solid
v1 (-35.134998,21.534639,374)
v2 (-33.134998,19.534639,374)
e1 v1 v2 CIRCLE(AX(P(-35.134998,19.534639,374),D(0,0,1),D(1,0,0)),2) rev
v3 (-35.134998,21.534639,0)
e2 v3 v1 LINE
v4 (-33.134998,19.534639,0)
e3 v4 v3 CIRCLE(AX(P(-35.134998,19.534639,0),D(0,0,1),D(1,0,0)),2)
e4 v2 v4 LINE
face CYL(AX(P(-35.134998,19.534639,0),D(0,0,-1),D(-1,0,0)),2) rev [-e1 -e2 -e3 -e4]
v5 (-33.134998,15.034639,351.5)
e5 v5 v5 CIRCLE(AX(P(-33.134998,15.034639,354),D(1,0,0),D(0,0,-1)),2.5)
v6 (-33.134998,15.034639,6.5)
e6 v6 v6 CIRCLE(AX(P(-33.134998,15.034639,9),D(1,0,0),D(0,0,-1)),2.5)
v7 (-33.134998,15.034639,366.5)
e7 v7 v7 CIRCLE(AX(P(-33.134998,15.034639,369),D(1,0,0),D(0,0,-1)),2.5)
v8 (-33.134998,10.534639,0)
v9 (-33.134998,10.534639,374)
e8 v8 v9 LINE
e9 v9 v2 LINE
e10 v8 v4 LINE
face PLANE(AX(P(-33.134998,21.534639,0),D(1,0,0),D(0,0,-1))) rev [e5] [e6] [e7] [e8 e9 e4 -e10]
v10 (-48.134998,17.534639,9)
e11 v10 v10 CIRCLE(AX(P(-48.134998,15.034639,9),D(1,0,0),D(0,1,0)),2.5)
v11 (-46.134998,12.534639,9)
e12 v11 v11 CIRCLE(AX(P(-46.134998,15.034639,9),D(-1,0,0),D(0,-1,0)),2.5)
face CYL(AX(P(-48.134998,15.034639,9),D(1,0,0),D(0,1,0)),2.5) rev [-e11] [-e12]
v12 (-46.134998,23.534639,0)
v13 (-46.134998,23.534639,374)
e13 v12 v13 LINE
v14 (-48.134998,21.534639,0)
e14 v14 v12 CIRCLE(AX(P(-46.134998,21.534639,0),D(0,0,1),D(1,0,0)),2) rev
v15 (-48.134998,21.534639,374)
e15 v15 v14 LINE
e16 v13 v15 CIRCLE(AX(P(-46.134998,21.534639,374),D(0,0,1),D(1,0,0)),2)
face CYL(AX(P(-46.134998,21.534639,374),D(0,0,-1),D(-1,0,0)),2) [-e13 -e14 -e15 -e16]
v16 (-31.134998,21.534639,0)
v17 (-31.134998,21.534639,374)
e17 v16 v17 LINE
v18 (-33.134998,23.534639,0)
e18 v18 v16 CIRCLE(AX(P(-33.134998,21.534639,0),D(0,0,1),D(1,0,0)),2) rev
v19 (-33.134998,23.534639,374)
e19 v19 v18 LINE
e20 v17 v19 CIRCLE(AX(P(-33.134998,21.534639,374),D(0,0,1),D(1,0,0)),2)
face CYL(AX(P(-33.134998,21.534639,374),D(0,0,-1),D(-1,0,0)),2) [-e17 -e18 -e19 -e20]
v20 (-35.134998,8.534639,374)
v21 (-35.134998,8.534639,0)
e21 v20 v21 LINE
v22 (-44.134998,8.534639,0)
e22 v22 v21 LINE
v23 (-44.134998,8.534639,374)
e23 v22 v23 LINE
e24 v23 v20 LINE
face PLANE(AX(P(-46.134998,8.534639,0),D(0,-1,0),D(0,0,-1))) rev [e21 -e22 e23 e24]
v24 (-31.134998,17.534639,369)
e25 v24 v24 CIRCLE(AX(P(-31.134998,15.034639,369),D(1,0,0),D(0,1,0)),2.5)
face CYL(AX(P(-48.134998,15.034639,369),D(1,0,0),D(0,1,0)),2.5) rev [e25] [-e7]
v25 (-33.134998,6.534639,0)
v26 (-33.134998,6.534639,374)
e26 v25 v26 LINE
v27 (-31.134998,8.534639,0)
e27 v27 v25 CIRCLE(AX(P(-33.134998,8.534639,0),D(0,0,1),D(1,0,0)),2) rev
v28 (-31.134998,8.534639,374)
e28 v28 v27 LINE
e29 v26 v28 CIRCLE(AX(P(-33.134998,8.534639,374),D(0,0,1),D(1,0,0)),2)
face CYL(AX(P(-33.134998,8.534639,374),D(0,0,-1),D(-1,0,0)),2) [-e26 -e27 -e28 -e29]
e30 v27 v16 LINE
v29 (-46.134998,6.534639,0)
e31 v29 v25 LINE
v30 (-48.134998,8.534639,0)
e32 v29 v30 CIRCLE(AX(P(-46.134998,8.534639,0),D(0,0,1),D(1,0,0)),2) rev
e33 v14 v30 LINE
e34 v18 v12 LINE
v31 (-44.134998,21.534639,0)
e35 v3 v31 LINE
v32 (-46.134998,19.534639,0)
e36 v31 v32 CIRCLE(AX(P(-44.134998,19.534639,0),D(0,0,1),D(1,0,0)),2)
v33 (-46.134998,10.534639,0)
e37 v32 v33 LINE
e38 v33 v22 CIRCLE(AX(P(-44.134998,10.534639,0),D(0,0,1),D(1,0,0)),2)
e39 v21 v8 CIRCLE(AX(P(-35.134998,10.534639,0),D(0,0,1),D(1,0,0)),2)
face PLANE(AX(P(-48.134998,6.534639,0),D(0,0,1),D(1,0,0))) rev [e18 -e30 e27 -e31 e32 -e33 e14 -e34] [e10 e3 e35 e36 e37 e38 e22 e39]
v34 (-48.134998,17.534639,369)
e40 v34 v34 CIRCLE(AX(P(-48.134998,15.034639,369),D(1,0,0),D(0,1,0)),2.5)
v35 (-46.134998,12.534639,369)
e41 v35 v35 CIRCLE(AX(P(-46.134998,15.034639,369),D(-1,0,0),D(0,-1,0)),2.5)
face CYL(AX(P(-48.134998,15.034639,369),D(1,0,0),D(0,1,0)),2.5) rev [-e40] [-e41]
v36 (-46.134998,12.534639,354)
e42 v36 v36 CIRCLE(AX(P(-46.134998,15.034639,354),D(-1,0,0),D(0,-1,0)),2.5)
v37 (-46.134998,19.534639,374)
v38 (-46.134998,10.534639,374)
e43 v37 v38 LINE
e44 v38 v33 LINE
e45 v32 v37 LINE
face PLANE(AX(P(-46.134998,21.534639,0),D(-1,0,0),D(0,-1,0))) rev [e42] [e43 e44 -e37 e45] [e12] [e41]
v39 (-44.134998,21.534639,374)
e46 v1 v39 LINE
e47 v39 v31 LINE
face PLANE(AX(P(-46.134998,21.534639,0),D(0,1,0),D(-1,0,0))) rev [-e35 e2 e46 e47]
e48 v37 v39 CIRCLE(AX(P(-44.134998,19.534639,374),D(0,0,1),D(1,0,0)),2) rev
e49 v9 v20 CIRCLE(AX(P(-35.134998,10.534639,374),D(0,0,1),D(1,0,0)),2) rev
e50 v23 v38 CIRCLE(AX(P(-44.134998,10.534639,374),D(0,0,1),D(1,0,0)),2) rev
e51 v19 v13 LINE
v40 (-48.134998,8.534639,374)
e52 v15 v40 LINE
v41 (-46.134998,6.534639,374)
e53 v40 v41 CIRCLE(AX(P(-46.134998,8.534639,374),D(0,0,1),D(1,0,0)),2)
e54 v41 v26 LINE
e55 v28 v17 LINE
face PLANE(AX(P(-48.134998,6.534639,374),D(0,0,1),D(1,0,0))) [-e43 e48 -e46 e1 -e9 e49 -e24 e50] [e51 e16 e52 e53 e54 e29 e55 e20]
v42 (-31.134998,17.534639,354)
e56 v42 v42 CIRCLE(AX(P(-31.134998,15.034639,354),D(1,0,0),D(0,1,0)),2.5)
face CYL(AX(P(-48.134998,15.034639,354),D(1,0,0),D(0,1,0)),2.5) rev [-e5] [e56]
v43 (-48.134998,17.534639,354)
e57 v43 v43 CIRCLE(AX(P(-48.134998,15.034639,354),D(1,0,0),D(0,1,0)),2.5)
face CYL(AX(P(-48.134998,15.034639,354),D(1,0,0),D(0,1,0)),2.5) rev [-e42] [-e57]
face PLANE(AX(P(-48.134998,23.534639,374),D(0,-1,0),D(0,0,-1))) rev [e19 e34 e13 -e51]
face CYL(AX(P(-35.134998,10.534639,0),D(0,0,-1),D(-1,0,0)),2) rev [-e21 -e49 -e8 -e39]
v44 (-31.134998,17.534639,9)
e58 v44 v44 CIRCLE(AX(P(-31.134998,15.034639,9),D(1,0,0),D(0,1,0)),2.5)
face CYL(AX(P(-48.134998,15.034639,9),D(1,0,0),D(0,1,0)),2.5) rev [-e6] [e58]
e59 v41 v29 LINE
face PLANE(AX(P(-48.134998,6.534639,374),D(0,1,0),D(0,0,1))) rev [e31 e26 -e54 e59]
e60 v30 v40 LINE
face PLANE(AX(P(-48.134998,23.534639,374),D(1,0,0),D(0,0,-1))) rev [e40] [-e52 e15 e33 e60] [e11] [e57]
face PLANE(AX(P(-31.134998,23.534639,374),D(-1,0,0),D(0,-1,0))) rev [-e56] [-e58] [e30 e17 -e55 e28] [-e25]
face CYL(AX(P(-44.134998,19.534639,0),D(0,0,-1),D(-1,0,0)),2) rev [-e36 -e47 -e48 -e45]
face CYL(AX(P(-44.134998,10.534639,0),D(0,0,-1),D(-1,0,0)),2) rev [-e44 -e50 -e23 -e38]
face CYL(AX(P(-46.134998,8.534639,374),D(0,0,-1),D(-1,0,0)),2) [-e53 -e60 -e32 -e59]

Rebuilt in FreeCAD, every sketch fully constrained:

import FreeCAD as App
import Part
import Sketcher
Q = App.Units.Quantity


def edges_at(feature, points):
    """Names of the edges that pass closest to the given points."""
    edges = feature.Shape.Edges
    near = lambda p: min(range(len(edges)), key=lambda i: edges[i].distToShape(Part.Vertex(*p))[0])
    return sorted({f"Edge{near(p) + 1}" for p in points})


def add_polygon(sketch, points):
    """Adds a closed chain of lines whose ends are joined by coincident constraints."""
    first, n = sketch.GeometryCount, len(points)
    for a, b in zip(points, points[1:] + points[:1]):
        sketch.addGeometry(Part.LineSegment(App.Vector(*a, 0), App.Vector(*b, 0)), False)
    for i in range(n):
        sketch.addConstraint(Sketcher.Constraint("Coincident", first + i, 2, first + (i + 1) % n, 1))

doc = App.newDocument("Part")
params = doc.addObject("Spreadsheet::Sheet", "Params")
for row, (alias, value) in enumerate([
    ("sketch1_width", "17 mm"),
    ("pad1_length", "374 mm"),
    ("fillet_radius", "2 mm"),
    ("sketch2_width", "13 mm"),
    ("fillet2_radius", "2 mm"),
    ("sketch3_diameter", "5 mm"),
], start=1):
    params.set(f"A{row}", alias)
    params.set(f"B{row}", "=" + value)
    params.setAlias(f"B{row}", alias)

body = doc.addObject("PartDesign::Body", "Body")

sketch1 = body.newObject("Sketcher::SketchObject", "Sketch")
sketch1.AttachmentSupport = (doc.getObject("XY_Plane"), [""])
sketch1.MapMode = "FlatFace"
add_polygon(sketch1, [(-48, 24), (-48, 7), (-31, 7), (-31, 24)])
sketch1.addConstraint([
    Sketcher.Constraint("Vertical", 0),
    Sketcher.Constraint("Horizontal", 1),
    Sketcher.Constraint("Vertical", 2),
    Sketcher.Constraint("Horizontal", 3),
    Sketcher.Constraint("Equal", 3, 0),
    Sketcher.Constraint("DistanceX", 1, 1, 1, 2, Q("17 mm")),
    Sketcher.Constraint("DistanceY", -1, 1, 0, 2, Q("6.534639 mm")),
    Sketcher.Constraint("DistanceX", 0, 2, -1, 1, Q("48.134998 mm")),
])
sketch1.setExpression("Constraints[9]", "Params.sketch1_width")
pad1 = body.newObject("PartDesign::Pad", "Pad")
pad1.Profile = sketch1
pad1.setExpression("Length", "Params.pad1_length")
doc.recompute()

fillet = body.newObject("PartDesign::Fillet", "Fillet")
fillet.Base = (pad1, edges_at(pad1, [
    (-48.135, 23.535, 187),
    (-31.135, 23.535, 187),
    (-31.135, 6.535, 187),
    (-48.135, 6.535, 187),
]))
fillet.setExpression("Radius", "Params.fillet_radius")

sketch2 = body.newObject("Sketcher::SketchObject", "Sketch001")
sketch2.AttachmentSupport = (doc.getObject("XY_Plane"), [""])
sketch2.MapMode = "FlatFace"
sketch2.AttachmentOffset = App.Placement(App.Vector(0, 0, 374), App.Rotation())
add_polygon(sketch2, [(-46, 22), (-46, 9), (-33, 9), (-33, 22)])
sketch2.addConstraint([
    Sketcher.Constraint("Vertical", 0),
    Sketcher.Constraint("Horizontal", 1),
    Sketcher.Constraint("Vertical", 2),
    Sketcher.Constraint("Horizontal", 3),
    Sketcher.Constraint("Equal", 3, 0),
    Sketcher.Constraint("DistanceX", 1, 1, 1, 2, Q("13 mm")),
    Sketcher.Constraint("DistanceY", -1, 1, 0, 2, Q("8.534639 mm")),
    Sketcher.Constraint("DistanceX", 0, 2, -1, 1, Q("46.134998 mm")),
])
sketch2.setExpression("Constraints[9]", "Params.sketch2_width")
pocket1 = body.newObject("PartDesign::Pocket", "Pocket")
pocket1.Profile = sketch2
pocket1.Type = "ThroughAll"
doc.recompute()

fillet2 = body.newObject("PartDesign::Fillet", "Fillet001")
fillet2.Base = (pocket1, edges_at(pocket1, [
    (-46.135, 8.535, 187),
    (-46.135, 21.535, 187),
    (-33.135, 21.535, 187),
    (-33.135, 8.535, 187),
]))
fillet2.setExpression("Radius", "Params.fillet2_radius")

sketch3 = body.newObject("Sketcher::SketchObject", "Sketch002")
sketch3.AttachmentSupport = (doc.getObject("YZ_Plane"), [""])
sketch3.MapMode = "FlatFace"
sketch3.AttachmentOffset = App.Placement(App.Vector(0, 0, -31.134998), App.Rotation())
sketch3.addGeometry([
    Part.Circle(App.Vector(15, 369, 0), App.Vector(0, 0, 1), 2.5),
    Part.Circle(App.Vector(15, 354, 0), App.Vector(0, 0, 1), 2.5),
    Part.Circle(App.Vector(15, 9, 0), App.Vector(0, 0, 1), 2.5),
], False)
sketch3.addConstraint([
    Sketcher.Constraint("Equal", 0, 1),
    Sketcher.Constraint("Equal", 1, 2),
    Sketcher.Constraint("Vertical", 0, 3, 1, 3),
    Sketcher.Constraint("Vertical", 1, 3, 2, 3),
    Sketcher.Constraint("Diameter", 0, Q("5 mm")),
    Sketcher.Constraint("DistanceY", -1, 1, 0, 3, Q("369 mm")),
    Sketcher.Constraint("DistanceY", -1, 1, 1, 3, Q("354 mm")),
    Sketcher.Constraint("DistanceY", -1, 1, 2, 3, Q("9 mm")),
    Sketcher.Constraint("DistanceX", -1, 1, 0, 3, Q("15.034639 mm")),
])
sketch3.setExpression("Constraints[4]", "Params.sketch3_diameter")
pocket2 = body.newObject("PartDesign::Pocket", "Pocket001")
pocket2.Profile = sketch3
pocket2.Type = "ThroughAll"

doc.recompute()
